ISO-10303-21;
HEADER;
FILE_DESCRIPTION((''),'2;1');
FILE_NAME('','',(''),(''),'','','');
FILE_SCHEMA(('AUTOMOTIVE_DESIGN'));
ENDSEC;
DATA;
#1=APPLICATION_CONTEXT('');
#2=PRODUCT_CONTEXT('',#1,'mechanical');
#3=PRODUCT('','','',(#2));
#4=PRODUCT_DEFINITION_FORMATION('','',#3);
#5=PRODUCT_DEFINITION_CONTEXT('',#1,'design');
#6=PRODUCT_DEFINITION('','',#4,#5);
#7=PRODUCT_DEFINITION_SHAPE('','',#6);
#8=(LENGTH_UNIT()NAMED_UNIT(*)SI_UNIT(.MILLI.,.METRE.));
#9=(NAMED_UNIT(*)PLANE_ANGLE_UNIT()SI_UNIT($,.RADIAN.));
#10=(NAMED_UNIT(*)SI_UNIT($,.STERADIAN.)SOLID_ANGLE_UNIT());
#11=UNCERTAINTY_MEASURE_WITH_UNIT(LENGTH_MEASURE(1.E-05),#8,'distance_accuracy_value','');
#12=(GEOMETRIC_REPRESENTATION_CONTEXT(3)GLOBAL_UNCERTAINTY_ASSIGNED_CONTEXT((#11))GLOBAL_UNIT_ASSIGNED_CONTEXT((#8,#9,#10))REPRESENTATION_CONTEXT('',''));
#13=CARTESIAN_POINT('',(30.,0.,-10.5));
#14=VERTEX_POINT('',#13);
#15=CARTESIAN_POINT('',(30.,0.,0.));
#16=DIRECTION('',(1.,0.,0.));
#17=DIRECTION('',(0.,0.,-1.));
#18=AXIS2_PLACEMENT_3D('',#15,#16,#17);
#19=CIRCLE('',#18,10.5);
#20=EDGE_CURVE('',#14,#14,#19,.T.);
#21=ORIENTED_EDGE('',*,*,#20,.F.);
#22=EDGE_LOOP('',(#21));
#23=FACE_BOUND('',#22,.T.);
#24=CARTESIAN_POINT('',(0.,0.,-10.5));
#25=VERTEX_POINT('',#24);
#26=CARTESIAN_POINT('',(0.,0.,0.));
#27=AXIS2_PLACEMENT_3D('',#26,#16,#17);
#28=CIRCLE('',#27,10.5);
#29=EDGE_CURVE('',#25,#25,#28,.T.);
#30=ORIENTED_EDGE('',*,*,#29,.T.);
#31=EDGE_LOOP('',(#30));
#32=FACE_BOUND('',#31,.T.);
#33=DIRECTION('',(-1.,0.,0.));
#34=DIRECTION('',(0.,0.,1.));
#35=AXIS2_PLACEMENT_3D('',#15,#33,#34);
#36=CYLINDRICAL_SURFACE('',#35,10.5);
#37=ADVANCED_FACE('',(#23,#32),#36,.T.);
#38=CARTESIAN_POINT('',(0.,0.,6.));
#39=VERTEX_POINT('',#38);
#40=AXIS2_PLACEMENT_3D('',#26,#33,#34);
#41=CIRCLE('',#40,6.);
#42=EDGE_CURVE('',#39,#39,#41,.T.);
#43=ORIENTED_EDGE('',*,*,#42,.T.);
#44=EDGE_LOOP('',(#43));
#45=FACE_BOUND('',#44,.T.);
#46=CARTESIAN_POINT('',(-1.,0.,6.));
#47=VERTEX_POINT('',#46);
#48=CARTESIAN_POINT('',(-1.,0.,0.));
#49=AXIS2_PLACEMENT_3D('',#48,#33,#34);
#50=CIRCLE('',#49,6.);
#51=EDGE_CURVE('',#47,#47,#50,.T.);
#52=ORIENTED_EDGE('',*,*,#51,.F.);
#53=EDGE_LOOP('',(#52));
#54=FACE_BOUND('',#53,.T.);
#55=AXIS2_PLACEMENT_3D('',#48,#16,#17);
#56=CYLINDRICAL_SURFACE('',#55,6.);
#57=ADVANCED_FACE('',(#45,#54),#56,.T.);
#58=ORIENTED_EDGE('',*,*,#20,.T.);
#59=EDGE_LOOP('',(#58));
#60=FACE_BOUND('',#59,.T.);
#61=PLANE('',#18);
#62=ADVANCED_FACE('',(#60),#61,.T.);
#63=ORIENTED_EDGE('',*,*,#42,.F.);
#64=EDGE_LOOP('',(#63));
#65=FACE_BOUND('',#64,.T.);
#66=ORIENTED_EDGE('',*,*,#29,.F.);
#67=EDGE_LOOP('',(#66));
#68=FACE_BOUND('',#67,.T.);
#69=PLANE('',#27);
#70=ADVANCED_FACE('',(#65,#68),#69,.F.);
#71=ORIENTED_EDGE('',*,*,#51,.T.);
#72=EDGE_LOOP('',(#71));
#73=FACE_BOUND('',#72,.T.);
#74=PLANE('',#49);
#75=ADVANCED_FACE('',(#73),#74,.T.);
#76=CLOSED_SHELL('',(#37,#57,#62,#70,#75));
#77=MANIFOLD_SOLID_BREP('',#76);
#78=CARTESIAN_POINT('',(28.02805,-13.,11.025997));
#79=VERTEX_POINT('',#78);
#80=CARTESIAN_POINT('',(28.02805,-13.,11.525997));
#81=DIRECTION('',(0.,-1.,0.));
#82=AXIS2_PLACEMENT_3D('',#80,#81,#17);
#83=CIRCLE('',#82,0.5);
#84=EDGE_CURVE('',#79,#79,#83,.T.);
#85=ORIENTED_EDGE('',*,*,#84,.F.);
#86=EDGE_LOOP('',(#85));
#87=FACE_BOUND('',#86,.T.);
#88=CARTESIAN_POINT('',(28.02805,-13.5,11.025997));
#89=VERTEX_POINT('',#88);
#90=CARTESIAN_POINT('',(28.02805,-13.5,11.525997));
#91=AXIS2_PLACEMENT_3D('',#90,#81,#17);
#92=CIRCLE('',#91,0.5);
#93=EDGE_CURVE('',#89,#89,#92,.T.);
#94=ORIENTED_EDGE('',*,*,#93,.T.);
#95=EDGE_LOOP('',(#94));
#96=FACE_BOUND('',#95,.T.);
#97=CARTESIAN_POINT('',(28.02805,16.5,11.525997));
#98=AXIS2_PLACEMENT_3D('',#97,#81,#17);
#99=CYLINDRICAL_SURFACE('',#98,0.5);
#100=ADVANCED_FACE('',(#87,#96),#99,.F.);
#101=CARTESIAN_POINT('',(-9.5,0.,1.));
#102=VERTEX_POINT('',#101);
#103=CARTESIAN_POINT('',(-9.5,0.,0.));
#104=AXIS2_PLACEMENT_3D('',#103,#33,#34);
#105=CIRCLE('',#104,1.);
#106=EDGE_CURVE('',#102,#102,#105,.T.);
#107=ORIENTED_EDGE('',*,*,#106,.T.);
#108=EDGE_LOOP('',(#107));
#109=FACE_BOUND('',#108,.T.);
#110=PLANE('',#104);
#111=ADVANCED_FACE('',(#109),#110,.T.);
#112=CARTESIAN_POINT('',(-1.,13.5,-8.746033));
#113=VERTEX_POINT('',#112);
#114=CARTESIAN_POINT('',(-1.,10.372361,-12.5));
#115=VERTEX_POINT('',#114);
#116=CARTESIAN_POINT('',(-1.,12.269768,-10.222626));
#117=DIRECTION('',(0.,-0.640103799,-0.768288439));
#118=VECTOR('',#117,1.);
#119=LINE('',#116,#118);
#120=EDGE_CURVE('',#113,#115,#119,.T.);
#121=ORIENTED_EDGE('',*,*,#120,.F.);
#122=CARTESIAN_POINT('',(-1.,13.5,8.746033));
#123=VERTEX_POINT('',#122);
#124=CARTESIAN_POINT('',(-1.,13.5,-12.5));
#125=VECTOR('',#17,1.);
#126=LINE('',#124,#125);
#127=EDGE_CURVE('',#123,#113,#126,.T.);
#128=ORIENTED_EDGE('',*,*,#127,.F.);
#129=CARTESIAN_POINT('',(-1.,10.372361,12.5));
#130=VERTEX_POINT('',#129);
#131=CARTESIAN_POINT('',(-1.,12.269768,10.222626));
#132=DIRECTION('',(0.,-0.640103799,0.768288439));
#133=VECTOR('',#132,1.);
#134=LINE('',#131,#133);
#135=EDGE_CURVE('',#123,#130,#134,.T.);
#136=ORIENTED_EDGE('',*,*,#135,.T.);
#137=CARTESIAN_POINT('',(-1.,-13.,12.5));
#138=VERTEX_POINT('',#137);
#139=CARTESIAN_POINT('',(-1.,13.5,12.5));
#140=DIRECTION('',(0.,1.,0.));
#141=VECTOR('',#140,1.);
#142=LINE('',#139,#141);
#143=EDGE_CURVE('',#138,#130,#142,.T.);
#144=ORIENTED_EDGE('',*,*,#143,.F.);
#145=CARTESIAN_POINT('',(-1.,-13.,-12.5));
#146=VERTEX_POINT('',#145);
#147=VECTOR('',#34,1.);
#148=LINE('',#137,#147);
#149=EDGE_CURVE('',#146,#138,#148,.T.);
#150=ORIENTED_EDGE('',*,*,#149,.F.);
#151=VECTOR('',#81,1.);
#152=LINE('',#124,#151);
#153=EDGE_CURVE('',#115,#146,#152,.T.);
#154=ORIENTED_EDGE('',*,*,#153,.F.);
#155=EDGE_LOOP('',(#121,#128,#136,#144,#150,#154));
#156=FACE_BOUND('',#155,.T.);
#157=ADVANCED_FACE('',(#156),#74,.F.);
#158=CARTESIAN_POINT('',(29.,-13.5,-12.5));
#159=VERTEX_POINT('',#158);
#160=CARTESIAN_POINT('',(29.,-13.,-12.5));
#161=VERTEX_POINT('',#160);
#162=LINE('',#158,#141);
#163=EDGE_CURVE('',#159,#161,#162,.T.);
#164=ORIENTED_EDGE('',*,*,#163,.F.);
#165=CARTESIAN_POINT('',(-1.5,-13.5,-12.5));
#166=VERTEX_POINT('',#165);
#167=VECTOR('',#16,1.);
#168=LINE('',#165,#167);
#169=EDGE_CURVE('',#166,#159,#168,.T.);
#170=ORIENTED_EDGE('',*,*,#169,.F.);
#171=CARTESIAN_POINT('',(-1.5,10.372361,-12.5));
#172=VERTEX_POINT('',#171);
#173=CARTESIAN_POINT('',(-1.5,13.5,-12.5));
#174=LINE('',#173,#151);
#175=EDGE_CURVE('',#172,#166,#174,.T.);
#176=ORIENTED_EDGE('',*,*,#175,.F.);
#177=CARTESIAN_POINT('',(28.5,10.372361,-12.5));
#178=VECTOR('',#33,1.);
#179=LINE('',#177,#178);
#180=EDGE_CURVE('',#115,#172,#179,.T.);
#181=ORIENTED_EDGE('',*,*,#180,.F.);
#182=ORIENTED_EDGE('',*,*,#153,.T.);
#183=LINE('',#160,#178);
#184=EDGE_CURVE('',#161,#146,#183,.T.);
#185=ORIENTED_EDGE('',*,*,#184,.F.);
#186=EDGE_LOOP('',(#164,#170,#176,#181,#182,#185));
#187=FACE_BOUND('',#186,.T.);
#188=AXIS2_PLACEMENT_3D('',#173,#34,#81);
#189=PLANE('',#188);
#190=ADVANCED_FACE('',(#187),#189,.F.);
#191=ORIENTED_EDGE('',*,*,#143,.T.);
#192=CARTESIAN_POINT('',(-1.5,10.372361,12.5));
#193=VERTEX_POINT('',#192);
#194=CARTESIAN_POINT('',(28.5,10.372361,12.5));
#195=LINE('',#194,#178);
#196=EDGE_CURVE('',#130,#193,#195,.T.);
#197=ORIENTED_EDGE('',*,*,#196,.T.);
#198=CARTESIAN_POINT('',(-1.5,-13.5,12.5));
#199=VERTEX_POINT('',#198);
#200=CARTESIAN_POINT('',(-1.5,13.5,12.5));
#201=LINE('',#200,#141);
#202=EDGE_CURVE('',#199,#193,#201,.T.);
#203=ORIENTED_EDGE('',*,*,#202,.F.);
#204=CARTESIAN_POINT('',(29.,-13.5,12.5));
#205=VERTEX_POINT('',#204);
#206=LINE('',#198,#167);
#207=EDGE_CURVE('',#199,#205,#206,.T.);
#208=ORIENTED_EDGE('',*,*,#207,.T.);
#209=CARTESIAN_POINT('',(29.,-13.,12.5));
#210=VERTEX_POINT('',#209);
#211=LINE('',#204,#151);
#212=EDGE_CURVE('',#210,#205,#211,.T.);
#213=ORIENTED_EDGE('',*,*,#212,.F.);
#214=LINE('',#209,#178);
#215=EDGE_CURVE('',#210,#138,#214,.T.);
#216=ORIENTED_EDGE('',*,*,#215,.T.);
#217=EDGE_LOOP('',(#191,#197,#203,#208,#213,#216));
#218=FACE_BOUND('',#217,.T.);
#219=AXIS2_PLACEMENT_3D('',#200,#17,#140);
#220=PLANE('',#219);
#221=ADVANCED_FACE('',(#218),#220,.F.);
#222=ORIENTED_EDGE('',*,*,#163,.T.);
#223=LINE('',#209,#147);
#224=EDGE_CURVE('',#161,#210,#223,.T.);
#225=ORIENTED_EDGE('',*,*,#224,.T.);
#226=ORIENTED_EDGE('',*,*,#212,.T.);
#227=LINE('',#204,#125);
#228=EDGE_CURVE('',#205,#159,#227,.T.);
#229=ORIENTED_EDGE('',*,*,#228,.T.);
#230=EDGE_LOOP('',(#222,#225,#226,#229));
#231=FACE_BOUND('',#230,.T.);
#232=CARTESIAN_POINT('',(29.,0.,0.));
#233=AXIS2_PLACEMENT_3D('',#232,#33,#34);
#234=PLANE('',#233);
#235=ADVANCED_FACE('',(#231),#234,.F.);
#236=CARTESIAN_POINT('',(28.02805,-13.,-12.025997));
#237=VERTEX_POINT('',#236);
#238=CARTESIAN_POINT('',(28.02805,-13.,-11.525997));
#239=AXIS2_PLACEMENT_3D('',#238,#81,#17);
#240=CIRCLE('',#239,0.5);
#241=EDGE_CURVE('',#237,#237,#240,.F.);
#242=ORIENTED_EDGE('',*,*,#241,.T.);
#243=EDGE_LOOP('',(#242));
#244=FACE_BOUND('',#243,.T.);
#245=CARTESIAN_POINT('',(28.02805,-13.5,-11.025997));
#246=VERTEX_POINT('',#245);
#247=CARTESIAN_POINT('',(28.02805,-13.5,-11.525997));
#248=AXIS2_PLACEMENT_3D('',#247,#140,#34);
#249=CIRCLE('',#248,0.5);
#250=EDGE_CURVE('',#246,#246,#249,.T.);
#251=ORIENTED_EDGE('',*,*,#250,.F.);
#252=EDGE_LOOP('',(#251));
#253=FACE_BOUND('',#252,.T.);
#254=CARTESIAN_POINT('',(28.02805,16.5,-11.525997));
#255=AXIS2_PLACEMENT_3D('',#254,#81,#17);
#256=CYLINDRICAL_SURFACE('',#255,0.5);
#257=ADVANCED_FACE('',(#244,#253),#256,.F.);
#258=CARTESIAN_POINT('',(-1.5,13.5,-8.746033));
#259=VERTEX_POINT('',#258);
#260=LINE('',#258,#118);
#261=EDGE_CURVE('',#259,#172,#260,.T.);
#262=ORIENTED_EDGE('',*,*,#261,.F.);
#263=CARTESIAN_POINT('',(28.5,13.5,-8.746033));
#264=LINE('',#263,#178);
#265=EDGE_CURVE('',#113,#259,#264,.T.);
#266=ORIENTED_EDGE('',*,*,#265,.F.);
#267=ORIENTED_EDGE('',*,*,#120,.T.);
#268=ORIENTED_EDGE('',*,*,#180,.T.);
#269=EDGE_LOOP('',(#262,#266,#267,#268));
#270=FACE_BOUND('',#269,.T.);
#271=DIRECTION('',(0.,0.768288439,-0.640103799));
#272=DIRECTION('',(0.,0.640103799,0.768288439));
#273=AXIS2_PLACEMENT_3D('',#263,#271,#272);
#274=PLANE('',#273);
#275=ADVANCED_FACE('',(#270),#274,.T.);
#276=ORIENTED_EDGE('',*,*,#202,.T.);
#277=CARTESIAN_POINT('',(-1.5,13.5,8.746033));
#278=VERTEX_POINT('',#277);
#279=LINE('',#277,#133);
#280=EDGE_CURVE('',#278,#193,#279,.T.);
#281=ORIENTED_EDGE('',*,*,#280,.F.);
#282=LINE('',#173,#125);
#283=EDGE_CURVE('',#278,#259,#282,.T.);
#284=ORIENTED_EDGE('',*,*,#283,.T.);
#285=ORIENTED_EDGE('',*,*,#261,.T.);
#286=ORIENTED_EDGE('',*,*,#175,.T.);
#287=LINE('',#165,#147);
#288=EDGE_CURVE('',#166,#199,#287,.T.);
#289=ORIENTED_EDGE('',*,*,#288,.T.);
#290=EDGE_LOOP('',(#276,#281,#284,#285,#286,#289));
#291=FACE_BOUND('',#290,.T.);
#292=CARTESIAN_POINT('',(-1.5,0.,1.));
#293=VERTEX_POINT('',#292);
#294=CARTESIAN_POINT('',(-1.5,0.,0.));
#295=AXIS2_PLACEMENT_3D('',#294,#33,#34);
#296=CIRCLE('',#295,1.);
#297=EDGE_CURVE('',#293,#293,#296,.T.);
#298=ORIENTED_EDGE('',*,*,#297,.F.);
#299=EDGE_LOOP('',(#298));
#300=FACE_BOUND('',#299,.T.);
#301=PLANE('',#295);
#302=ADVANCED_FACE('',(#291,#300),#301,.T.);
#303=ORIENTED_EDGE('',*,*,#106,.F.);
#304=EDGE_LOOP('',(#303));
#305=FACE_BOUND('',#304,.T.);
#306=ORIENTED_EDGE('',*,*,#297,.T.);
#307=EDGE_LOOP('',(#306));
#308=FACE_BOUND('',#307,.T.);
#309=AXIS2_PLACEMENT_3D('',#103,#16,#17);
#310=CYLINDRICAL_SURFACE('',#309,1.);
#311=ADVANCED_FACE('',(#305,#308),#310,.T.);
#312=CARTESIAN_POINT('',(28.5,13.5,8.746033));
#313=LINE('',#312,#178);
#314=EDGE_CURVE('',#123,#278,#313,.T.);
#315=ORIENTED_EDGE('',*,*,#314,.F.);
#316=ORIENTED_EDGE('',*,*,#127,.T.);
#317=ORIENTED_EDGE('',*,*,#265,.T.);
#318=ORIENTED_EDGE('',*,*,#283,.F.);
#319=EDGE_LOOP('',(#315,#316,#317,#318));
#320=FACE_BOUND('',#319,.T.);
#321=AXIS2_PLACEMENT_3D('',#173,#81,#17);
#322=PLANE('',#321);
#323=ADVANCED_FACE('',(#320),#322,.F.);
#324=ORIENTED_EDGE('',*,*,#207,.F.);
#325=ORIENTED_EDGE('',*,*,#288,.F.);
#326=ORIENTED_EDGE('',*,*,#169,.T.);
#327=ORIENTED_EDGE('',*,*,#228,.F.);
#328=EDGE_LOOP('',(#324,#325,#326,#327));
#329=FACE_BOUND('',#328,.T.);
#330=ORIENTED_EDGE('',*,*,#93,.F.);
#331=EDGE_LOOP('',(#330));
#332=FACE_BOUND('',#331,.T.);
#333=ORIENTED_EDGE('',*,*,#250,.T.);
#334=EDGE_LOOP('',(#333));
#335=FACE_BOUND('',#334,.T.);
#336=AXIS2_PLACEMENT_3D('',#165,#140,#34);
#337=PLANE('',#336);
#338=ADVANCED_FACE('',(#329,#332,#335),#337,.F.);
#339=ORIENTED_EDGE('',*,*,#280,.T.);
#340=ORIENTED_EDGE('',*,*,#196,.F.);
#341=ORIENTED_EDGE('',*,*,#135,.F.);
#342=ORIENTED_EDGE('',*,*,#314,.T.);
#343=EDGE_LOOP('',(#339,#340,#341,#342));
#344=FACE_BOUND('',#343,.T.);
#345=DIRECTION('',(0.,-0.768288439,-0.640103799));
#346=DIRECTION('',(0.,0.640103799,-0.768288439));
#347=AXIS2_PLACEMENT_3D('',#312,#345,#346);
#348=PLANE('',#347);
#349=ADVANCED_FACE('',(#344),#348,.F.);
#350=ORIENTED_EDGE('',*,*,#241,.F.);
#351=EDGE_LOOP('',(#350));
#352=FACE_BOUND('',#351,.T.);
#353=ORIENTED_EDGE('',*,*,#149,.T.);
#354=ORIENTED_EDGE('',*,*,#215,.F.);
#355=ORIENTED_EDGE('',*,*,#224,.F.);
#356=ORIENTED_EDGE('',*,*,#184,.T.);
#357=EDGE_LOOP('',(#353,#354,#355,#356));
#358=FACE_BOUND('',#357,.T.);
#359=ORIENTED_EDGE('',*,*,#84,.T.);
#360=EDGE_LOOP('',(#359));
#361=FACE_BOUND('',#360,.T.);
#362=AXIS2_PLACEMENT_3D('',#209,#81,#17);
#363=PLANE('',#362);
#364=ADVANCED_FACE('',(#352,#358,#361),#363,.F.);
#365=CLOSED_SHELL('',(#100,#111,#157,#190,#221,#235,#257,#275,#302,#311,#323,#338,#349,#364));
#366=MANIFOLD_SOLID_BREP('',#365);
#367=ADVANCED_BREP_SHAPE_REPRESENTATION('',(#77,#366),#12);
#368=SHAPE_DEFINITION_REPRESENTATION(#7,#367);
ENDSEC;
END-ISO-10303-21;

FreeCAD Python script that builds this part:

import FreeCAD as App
import Part
import Sketcher

V = App.Vector
Q = App.Units.Quantity

doc = App.newDocument("Part")
body = doc.addObject("PartDesign::Body", "Body")

# Sketch on YZ plane
sketch1 = body.newObject("Sketcher::SketchObject", "Sketch")
sketch1.AttachmentSupport = (doc.getObject("YZ_Plane"), [""])
sketch1.MapMode = "FlatFace"
sketch1.addGeometry(Part.Circle(V(0, 0, 0), V(0, 0, 1), 10), False)
sketch1.addConstraint(Sketcher.Constraint("Coincident", 0, 3, -1, 1))
sketch1.addConstraint(Sketcher.Constraint("Diameter", 0, Q("21 mm")))
pad1 = body.newObject("PartDesign::Pad", "Pad")
pad1.Profile = sketch1
pad1.Length = 30

# Sketch on YZ plane
sketch2 = body.newObject("Sketcher::SketchObject", "Sketch001")
sketch2.AttachmentSupport = (doc.getObject("YZ_Plane"), [""])
sketch2.MapMode = "FlatFace"
sketch2.addGeometry(Part.Circle(V(0, 0, 0), V(0, 0, 1), 6), False)
sketch2.addConstraint(Sketcher.Constraint("Coincident", 0, 3, -1, 1))
sketch2.addConstraint(Sketcher.Constraint("Diameter", 0, Q("12 mm")))
pad2 = body.newObject("PartDesign::Pad", "Pad001")
pad2.Profile = sketch2
pad2.Length = 1
pad2.Reversed = True
body2 = doc.addObject("PartDesign::Body", "Body001")

# Sketch on YZ plane
sketch3 = body2.newObject("Sketcher::SketchObject", "Sketch002")
sketch3.AttachmentSupport = (doc.getObject("YZ_Plane001"), [""])
sketch3.MapMode = "FlatFace"
sketch3.AttachmentOffset = App.Placement(V(0, 0, -1), App.Rotation())
sketch3.addGeometry(Part.LineSegment(V(14, -12, 0), V(-14, -12, 0)), False)
sketch3.addGeometry(Part.LineSegment(V(-14, -12, 0), V(-14, 12, 0)), False)
sketch3.addGeometry(Part.LineSegment(V(-14, 12, 0), V(14, 12, 0)), False)
sketch3.addGeometry(Part.LineSegment(V(14, 12, 0), V(14, -12, 0)), False)
sketch3.addConstraint(Sketcher.Constraint("Coincident", 0, 2, 1, 1))
sketch3.addConstraint(Sketcher.Constraint("Coincident", 1, 2, 2, 1))
sketch3.addConstraint(Sketcher.Constraint("Coincident", 2, 2, 3, 1))
sketch3.addConstraint(Sketcher.Constraint("Coincident", 3, 2, 0, 1))
sketch3.addConstraint(Sketcher.Constraint("Horizontal", 0))
sketch3.addConstraint(Sketcher.Constraint("Vertical", 1))
sketch3.addConstraint(Sketcher.Constraint("Horizontal", 2))
sketch3.addConstraint(Sketcher.Constraint("Vertical", 3))
sketch3.addConstraint(Sketcher.Constraint("Symmetric", 0, 2, 2, 2, -1, 1))
sketch3.addConstraint(Sketcher.Constraint("DistanceX", 0, 2, 0, 1, Q("27 mm")))
sketch3.addConstraint(Sketcher.Constraint("DistanceY", 1, 1, 1, 2, Q("25 mm")))
pad3 = body2.newObject("PartDesign::Pad", "Pad002")
pad3.Profile = sketch3
pad3.Length = 0.5
pad3.Reversed = True

# Sketch on YZ plane
sketch4 = body2.newObject("Sketcher::SketchObject", "Sketch003")
sketch4.AttachmentSupport = (doc.getObject("YZ_Plane001"), [""])
sketch4.MapMode = "FlatFace"
sketch4.AttachmentOffset = App.Placement(V(0, 0, -1), App.Rotation())
sketch4.addGeometry(Part.LineSegment(V(-13, 12.5, 0), V(-13.5, 12.5, 0)), False)
sketch4.addGeometry(Part.LineSegment(V(-13.5, 12.5, 0), V(-13.5, -12.5, 0)), False)
sketch4.addGeometry(Part.LineSegment(V(-13.5, -12.5, 0), V(-13, -12.5, 0)), False)
sketch4.addGeometry(Part.LineSegment(V(-13, -12.5, 0), V(-13, 12.5, 0)), False)
sketch4.addConstraint(Sketcher.Constraint("Coincident", 0, 2, 1, 1))
sketch4.addConstraint(Sketcher.Constraint("Coincident", 1, 2, 2, 1))
sketch4.addConstraint(Sketcher.Constraint("Coincident", 2, 2, 3, 1))
sketch4.addConstraint(Sketcher.Constraint("Coincident", 3, 2, 0, 1))
sketch4.addConstraint(Sketcher.Constraint("Horizontal", 0))
sketch4.addConstraint(Sketcher.Constraint("Vertical", 1))
sketch4.addConstraint(Sketcher.Constraint("Horizontal", 2))
sketch4.addConstraint(Sketcher.Constraint("Vertical", 3))
sketch4.addConstraint(Sketcher.Constraint("DistanceY", 1, 2, 1, 1, Q("25 mm")))
sketch4.addConstraint(Sketcher.Constraint("DistanceX", 0, 2, 0, 1, Q("0.5 mm")))
sketch4.addConstraint(Sketcher.Constraint("DistanceX", 2, 2, -1, 1, Q("13 mm")))
sketch4.addConstraint(Sketcher.Constraint("DistanceY", -1, 1, 0, 2, Q("12.5 mm")))
pad4 = body2.newObject("PartDesign::Pad", "Pad003")
pad4.Profile = sketch4
pad4.Length = 30

# Sketch on XZ plane
sketch5 = body2.newObject("Sketcher::SketchObject", "Sketch004")
sketch5.AttachmentSupport = (doc.getObject("XZ_Plane001"), [""])
sketch5.MapMode = "FlatFace"
sketch5.AttachmentOffset = App.Placement(V(0, 0, 13.5), App.Rotation())
sketch5.addGeometry(Part.Circle(V(28, 11.5, 0), V(0, 0, 1), 0.5), False)
sketch5.addConstraint(Sketcher.Constraint("Diameter", 0, Q("1 mm")))
sketch5.addConstraint(Sketcher.Constraint("DistanceX", -1, 1, 0, 3, Q("28.02805 mm")))
sketch5.addConstraint(Sketcher.Constraint("DistanceY", -1, 1, 0, 3, Q("11.525997 mm")))
pocket1 = body2.newObject("PartDesign::Pocket", "Pocket")
pocket1.Profile = sketch5
pocket1.Length = 30
doc.recompute()

mirrored = body2.newObject("PartDesign::Mirrored", "Mirrored")
mirrored.Originals = [pocket1]
mirrored.MirrorPlane = (doc.getObject("XY_Plane001"), [""])
body2.Tip = mirrored

# Sketch on YZ plane
sketch6 = body2.newObject("Sketcher::SketchObject", "Sketch005")
sketch6.AttachmentSupport = (doc.getObject("YZ_Plane001"), [""])
sketch6.MapMode = "FlatFace"
sketch6.AttachmentOffset = App.Placement(V(0, 0, -1.5), App.Rotation())
sketch6.addGeometry(Part.LineSegment(V(13.5, 8.7, 0), V(10.4, 12.5, 0)), False)
sketch6.addGeometry(Part.LineSegment(V(10.4, 12.5, 0), V(13.5, 12.5, 0)), False)
sketch6.addGeometry(Part.LineSegment(V(13.5, 12.5, 0), V(13.5, 8.7, 0)), False)
sketch6.addConstraint(Sketcher.Constraint("Coincident", 0, 2, 1, 1))
sketch6.addConstraint(Sketcher.Constraint("Coincident", 1, 2, 2, 1))
sketch6.addConstraint(Sketcher.Constraint("Coincident", 2, 2, 0, 1))
sketch6.addConstraint(Sketcher.Constraint("Horizontal", 1))
sketch6.addConstraint(Sketcher.Constraint("Vertical", 2))
sketch6.addConstraint(Sketcher.Constraint("DistanceY", -1, 1, 0, 2, Q("12.5 mm")))
sketch6.addConstraint(Sketcher.Constraint("DistanceX", -1, 1, 1, 2, Q("13.5 mm")))
sketch6.addConstraint(Sketcher.Constraint("DistanceX", 1, 1, 1, 2, Q("3.127639 mm")))
sketch6.addConstraint(Sketcher.Constraint("DistanceY", 2, 2, 2, 1, Q("3.753967 mm")))
pocket2 = body2.newObject("PartDesign::Pocket", "Pocket001")
pocket2.Profile = sketch6
pocket2.Length = 30
pocket2.Reversed = True
doc.recompute()

mirrored2 = body2.newObject("PartDesign::Mirrored", "Mirrored001")
mirrored2.Originals = [pocket2]
mirrored2.MirrorPlane = (doc.getObject("XY_Plane001"), [""])
body2.Tip = mirrored2

# Sketch on YZ plane
sketch7 = body2.newObject("Sketcher::SketchObject", "Sketch006")
sketch7.AttachmentSupport = (doc.getObject("YZ_Plane001"), [""])
sketch7.MapMode = "FlatFace"
sketch7.AttachmentOffset = App.Placement(V(0, 0, -1.5), App.Rotation())
sketch7.addGeometry(Part.Circle(V(0, 0, 0), V(0, 0, 1), 1), False)
sketch7.addConstraint(Sketcher.Constraint("Coincident", 0, 3, -1, 1))
sketch7.addConstraint(Sketcher.Constraint("Diameter", 0, Q("2 mm")))
pad5 = body2.newObject("PartDesign::Pad", "Pad004")
pad5.Profile = sketch7
pad5.Length = 8
pad5.Reversed = True

doc.recompute()
